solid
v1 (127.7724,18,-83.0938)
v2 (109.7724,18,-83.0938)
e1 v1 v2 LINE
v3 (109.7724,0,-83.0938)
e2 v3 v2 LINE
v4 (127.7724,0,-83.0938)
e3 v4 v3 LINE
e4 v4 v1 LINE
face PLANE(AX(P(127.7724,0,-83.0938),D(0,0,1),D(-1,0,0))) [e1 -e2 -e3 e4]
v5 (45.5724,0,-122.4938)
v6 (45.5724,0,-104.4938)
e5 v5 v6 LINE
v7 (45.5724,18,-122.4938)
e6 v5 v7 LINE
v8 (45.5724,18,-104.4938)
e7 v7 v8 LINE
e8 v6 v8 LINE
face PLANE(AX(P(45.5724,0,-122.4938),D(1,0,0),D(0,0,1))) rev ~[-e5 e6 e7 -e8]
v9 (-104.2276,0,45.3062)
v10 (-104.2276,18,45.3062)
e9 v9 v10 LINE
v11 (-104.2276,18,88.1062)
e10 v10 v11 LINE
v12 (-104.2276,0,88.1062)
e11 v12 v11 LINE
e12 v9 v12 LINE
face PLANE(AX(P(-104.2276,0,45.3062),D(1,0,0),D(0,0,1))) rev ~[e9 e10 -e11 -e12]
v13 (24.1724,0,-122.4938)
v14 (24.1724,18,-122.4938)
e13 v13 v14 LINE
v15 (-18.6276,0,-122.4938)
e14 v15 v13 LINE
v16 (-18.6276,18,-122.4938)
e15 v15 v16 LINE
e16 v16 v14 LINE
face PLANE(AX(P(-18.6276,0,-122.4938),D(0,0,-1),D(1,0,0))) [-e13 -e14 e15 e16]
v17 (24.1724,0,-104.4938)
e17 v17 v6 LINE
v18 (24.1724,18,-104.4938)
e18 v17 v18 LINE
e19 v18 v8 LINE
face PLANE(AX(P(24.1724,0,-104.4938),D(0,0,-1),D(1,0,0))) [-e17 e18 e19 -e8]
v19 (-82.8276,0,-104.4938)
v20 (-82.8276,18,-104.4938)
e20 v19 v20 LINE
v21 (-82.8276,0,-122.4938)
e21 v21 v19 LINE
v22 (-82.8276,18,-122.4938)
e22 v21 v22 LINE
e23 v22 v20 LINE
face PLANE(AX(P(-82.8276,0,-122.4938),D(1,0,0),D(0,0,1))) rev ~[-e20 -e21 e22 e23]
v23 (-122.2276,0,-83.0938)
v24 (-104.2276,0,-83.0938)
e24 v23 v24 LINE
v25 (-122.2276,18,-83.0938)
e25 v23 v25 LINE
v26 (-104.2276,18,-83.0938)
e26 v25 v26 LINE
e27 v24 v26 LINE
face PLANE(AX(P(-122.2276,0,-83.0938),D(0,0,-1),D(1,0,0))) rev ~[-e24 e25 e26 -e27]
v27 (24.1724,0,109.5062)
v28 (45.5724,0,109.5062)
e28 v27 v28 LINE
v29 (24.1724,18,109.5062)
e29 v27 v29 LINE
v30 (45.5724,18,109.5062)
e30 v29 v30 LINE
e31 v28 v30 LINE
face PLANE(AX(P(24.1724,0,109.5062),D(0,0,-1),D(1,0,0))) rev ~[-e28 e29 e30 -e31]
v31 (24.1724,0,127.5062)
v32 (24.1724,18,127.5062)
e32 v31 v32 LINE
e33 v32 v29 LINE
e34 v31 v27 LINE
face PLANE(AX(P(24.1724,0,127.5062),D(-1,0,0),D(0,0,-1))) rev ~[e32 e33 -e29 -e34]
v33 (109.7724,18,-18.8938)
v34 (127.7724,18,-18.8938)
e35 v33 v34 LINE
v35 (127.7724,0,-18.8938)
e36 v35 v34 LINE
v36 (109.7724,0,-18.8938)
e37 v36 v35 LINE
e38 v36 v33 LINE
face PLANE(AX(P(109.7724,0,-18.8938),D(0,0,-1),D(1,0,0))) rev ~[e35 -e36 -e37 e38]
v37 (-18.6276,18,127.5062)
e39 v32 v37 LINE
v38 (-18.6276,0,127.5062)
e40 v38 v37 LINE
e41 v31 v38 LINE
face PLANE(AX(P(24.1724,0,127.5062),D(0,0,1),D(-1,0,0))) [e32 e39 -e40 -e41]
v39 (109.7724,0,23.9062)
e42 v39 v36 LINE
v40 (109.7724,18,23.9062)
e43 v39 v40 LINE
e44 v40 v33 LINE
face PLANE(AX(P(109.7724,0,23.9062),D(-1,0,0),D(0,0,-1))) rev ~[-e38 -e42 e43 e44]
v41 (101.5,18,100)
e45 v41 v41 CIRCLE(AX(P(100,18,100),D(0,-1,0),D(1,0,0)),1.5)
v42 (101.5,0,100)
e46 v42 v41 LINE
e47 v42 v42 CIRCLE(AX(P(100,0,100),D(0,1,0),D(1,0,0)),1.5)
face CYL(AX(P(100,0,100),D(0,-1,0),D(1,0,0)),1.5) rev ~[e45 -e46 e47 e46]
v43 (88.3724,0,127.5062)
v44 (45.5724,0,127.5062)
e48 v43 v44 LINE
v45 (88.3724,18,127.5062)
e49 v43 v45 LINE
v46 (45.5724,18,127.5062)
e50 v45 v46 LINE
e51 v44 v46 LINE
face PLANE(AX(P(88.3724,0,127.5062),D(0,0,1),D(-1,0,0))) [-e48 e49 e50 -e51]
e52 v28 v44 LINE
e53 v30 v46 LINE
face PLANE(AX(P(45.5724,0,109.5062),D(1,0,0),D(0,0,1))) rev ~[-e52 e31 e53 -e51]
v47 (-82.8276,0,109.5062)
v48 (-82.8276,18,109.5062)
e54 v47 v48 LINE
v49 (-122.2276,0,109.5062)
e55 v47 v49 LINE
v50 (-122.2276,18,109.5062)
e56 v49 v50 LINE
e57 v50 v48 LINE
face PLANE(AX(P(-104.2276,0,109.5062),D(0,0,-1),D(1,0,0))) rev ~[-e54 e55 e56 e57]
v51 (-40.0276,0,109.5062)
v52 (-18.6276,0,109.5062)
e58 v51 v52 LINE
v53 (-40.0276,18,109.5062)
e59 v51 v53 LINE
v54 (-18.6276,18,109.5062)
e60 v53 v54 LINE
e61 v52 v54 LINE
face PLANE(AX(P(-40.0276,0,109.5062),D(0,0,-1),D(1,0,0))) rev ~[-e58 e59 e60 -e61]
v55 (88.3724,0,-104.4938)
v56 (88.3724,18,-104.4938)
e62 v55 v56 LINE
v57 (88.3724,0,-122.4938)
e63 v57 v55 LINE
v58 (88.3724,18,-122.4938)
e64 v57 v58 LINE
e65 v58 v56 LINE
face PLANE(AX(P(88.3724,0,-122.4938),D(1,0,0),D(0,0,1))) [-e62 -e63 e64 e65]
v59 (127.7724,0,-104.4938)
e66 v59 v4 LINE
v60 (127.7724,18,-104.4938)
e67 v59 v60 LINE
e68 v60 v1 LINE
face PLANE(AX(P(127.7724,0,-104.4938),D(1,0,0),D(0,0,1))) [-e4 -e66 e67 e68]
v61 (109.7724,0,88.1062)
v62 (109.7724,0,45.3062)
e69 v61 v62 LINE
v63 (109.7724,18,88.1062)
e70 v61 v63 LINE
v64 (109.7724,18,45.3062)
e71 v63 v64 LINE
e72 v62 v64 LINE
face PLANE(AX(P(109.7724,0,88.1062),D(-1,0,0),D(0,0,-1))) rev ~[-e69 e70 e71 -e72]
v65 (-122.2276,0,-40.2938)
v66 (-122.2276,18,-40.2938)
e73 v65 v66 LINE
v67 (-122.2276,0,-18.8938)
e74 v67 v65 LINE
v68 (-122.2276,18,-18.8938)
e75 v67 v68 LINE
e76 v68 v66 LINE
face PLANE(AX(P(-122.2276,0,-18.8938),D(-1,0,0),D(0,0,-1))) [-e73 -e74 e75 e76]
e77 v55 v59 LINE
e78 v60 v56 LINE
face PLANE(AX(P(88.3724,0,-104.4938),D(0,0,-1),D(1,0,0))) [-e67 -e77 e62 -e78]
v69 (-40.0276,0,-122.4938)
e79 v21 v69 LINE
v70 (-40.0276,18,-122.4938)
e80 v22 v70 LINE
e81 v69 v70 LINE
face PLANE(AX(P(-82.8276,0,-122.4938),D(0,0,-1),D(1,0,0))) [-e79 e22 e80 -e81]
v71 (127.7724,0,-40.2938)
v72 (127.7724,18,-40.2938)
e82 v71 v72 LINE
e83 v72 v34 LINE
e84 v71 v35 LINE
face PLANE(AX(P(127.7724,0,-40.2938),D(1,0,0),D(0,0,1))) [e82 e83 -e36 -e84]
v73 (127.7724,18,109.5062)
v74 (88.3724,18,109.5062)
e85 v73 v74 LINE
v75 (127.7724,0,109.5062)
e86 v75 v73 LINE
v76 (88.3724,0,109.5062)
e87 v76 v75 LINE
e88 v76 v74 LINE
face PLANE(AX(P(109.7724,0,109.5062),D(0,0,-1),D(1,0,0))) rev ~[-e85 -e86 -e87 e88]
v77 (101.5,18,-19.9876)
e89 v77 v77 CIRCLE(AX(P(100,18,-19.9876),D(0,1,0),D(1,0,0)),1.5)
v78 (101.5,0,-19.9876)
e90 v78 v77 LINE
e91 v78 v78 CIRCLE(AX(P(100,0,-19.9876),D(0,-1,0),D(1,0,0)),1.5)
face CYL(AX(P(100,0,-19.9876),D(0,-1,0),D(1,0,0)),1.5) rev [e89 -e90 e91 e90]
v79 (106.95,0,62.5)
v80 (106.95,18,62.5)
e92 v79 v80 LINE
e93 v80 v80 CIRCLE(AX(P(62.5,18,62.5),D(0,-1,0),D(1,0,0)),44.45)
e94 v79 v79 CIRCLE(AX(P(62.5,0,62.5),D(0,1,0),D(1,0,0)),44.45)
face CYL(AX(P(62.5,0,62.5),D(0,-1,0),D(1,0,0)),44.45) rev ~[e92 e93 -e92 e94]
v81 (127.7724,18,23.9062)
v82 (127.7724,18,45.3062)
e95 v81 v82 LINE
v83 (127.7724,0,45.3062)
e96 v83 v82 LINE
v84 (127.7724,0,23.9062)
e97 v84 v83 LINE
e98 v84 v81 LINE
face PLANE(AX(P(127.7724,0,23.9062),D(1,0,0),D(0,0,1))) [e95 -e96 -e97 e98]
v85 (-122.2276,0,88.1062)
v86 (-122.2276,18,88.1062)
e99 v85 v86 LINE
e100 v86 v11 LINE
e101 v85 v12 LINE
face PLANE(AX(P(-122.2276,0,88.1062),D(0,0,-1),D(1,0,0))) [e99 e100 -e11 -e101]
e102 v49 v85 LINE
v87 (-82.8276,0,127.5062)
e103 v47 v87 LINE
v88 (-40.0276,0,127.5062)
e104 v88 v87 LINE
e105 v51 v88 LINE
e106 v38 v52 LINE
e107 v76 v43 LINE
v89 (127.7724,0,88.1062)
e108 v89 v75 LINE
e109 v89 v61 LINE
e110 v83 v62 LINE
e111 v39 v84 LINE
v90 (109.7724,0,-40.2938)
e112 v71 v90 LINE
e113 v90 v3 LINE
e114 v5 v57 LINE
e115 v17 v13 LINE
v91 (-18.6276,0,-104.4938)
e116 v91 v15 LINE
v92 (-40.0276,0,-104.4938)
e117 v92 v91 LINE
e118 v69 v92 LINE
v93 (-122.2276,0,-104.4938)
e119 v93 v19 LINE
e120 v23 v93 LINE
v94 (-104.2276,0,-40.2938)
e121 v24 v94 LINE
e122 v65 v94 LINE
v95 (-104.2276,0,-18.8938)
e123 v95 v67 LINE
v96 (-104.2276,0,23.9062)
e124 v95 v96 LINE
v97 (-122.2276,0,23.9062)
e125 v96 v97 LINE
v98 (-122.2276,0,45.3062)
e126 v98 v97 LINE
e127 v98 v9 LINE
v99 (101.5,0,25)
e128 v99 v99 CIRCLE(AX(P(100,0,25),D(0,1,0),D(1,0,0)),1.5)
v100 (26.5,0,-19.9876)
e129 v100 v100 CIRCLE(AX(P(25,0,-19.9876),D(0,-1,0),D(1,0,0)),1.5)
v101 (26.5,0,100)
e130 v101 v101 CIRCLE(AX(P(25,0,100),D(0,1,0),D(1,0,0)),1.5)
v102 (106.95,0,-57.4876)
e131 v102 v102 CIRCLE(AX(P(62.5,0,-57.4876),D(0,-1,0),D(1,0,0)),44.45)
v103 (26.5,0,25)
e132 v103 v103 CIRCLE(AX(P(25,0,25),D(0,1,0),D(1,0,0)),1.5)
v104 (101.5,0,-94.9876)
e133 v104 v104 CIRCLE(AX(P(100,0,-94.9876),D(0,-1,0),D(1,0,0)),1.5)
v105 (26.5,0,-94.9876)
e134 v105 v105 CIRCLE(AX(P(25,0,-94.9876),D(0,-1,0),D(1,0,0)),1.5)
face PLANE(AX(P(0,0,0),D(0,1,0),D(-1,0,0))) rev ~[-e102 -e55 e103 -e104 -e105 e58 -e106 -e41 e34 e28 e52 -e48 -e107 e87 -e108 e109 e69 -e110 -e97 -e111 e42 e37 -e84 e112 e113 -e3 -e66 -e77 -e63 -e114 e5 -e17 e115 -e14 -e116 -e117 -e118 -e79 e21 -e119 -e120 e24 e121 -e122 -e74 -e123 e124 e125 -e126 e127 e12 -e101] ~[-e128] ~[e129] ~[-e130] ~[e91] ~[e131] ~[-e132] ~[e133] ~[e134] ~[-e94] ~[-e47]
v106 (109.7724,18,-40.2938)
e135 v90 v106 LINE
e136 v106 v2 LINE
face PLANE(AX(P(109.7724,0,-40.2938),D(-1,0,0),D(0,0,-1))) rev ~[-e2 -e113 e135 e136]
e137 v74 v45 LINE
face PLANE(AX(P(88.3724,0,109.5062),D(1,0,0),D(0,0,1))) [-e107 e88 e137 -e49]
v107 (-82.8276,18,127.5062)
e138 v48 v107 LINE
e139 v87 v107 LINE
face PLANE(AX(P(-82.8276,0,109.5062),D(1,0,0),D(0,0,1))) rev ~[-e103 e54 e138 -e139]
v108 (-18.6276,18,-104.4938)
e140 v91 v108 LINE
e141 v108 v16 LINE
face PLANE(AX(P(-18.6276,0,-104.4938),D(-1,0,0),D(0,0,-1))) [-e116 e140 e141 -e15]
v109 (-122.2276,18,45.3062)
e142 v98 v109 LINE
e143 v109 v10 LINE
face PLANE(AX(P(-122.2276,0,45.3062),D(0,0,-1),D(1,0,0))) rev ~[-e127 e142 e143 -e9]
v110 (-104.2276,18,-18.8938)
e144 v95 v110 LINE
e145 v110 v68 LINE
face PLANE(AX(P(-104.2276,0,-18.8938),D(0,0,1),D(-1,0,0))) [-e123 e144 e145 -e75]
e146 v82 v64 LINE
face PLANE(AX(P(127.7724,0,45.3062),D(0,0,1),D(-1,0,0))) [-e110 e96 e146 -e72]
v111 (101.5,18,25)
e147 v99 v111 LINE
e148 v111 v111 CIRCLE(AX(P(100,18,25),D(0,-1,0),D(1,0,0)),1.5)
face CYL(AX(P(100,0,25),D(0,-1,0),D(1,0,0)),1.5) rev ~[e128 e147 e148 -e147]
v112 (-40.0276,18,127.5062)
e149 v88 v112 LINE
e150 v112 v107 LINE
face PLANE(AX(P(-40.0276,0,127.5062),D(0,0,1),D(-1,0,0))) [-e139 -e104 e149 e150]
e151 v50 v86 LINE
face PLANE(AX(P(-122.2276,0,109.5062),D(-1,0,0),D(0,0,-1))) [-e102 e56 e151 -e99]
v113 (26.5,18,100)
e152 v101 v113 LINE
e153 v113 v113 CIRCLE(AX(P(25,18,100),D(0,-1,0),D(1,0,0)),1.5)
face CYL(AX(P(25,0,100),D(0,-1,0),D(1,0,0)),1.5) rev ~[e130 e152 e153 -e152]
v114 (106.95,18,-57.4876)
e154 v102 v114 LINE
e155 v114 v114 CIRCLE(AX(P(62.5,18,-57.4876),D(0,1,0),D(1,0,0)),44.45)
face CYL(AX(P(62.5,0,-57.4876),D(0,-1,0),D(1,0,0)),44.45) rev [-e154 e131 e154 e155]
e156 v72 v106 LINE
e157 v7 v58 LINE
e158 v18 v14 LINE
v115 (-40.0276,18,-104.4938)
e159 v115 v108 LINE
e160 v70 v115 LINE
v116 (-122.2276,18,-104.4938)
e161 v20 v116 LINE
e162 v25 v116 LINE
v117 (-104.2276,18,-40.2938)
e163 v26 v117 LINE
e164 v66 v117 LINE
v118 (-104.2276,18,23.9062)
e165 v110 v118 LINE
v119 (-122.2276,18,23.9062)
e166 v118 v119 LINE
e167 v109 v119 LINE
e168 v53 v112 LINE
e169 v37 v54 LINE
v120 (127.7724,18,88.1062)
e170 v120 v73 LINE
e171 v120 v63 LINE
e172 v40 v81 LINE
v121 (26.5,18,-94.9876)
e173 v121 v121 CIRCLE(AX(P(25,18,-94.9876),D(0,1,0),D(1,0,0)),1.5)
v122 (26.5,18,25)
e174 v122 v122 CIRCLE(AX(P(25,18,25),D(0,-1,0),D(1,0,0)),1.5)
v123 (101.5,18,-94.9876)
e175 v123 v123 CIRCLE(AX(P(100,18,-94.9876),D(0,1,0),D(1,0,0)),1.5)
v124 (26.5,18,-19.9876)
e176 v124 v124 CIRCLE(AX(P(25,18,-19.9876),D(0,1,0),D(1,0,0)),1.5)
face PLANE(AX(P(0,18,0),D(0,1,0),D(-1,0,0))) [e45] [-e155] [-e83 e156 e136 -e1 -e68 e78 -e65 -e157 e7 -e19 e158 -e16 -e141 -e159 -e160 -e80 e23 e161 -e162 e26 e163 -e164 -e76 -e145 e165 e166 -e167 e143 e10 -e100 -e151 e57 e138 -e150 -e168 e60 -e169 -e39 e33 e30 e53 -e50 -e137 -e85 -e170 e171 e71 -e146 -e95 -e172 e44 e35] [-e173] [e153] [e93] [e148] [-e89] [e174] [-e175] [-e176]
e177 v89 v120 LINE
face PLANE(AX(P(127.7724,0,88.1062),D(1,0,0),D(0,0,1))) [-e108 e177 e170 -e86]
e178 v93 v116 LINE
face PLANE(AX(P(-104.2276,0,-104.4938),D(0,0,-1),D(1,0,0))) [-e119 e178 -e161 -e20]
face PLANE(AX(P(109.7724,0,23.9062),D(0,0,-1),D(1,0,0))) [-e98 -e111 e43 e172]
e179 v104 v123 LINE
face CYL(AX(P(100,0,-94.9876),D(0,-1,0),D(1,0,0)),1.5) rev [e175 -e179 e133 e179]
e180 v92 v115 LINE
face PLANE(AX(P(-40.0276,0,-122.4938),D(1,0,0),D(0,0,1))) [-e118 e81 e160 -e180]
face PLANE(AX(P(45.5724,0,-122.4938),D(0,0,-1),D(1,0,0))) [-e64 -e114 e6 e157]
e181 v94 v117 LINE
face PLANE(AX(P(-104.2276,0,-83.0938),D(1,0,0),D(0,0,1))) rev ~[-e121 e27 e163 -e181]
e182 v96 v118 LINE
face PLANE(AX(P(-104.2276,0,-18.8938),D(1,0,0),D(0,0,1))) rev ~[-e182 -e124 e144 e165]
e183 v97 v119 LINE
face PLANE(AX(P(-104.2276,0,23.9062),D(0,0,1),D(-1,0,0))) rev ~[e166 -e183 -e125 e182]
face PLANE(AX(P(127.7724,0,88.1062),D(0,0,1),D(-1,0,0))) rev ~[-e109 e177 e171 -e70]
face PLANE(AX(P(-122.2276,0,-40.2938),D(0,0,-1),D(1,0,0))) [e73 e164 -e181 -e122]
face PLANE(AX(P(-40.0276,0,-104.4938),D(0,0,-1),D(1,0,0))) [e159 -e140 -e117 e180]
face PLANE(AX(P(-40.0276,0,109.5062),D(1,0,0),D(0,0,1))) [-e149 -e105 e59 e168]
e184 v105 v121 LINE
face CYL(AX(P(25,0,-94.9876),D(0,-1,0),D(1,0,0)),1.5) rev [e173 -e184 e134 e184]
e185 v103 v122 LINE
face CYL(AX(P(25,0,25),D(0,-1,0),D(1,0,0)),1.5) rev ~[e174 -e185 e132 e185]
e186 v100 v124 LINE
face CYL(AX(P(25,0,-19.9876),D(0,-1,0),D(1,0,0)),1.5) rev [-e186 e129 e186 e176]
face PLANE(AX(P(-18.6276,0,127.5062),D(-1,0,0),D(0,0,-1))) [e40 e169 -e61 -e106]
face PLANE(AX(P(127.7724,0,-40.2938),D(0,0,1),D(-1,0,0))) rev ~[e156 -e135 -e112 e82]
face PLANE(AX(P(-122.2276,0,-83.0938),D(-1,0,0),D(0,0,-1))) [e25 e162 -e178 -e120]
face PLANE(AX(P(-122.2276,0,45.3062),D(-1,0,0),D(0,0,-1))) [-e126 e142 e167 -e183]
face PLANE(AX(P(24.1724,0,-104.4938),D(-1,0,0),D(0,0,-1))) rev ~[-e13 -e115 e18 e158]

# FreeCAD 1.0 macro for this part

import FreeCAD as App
import Part
import Sketcher

V = App.Vector


def add_polygon(sketch, points):
    """Adds a closed chain of lines whose ends are joined by coincident constraints."""
    first, n = sketch.GeometryCount, len(points)
    for a, b in zip(points, points[1:] + points[:1]):
        sketch.addGeometry(Part.LineSegment(App.Vector(*a, 0), App.Vector(*b, 0)), False)
    for i in range(n):
        sketch.addConstraint(Sketcher.Constraint("Coincident", first + i, 2, first + (i + 1) % n, 1))

doc = App.newDocument("Part")
body = doc.addObject("PartDesign::Body", "Body")

sketch1 = body.newObject("Sketcher::SketchObject", "Sketch")
sketch1.AttachmentSupport = (doc.getObject("XZ_Plane"), [""])
sketch1.MapMode = "FlatFace"
add_polygon(sketch1, [(127.7724, 109.5062), (127.7724, 88.1062), (109.7724, 88.1062), (109.7724, 45.3062), (127.7724, 45.3062), (127.7724, 23.9062), (109.7724, 23.9062), (109.7724, -18.8938), (127.7724, -18.8938), (127.7724, -40.2938), (109.7724, -40.2938), (109.7724, -83.0938), (127.7724, -83.0938), (127.7724, -104.4938), (88.3724, -104.4938), (88.3724, -122.4938), (45.5724, -122.4938), (45.5724, -104.4938), (24.1724, -104.4938), (24.1724, -122.4938), (-18.6276, -122.4938), (-18.6276, -104.4938), (-40.0276, -104.4938), (-40.0276, -122.4938), (-82.8276, -122.4938), (-82.8276, -104.4938), (-122.2276, -104.4938), (-122.2276, -83.0938), (-104.2276, -83.0938), (-104.2276, -40.2938), (-122.2276, -40.2938), (-122.2276, -18.8938), (-104.2276, -18.8938), (-104.2276, 23.9062), (-122.2276, 23.9062), (-122.2276, 45.3062), (-104.2276, 45.3062), (-104.2276, 88.1062), (-122.2276, 88.1062), (-122.2276, 109.5062), (-82.8276, 109.5062), (-82.8276, 127.5062), (-40.0276, 127.5062), (-40.0276, 109.5062), (-18.6276, 109.5062), (-18.6276, 127.5062), (24.1724, 127.5062), (24.1724, 109.5062), (45.5724, 109.5062), (45.5724, 127.5062), (88.3724, 127.5062), (88.3724, 109.5062)])
sketch1.addConstraint([
    Sketcher.Constraint("Vertical", 0),
    Sketcher.Constraint("Horizontal", 1),
    Sketcher.Constraint("Vertical", 2),
    Sketcher.Constraint("Horizontal", 3),
    Sketcher.Constraint("Vertical", 4),
    Sketcher.Constraint("Horizontal", 5),
    Sketcher.Constraint("Vertical", 6),
    Sketcher.Constraint("Horizontal", 7),
    Sketcher.Constraint("Vertical", 8),
    Sketcher.Constraint("Horizontal", 9),
    Sketcher.Constraint("Vertical", 10),
    Sketcher.Constraint("Horizontal", 11),
    Sketcher.Constraint("Vertical", 12),
    Sketcher.Constraint("Horizontal", 13),
    Sketcher.Constraint("Vertical", 14),
    Sketcher.Constraint("Horizontal", 15),
    Sketcher.Constraint("Vertical", 16),
    Sketcher.Constraint("Horizontal", 17),
    Sketcher.Constraint("Vertical", 18),
    Sketcher.Constraint("Horizontal", 19),
    Sketcher.Constraint("Vertical", 20),
    Sketcher.Constraint("Horizontal", 21),
    Sketcher.Constraint("Vertical", 22),
    Sketcher.Constraint("Horizontal", 23),
    Sketcher.Constraint("Vertical", 24),
    Sketcher.Constraint("Horizontal", 25),
    Sketcher.Constraint("Vertical", 26),
    Sketcher.Constraint("Horizontal", 27),
    Sketcher.Constraint("Vertical", 28),
    Sketcher.Constraint("Horizontal", 29),
    Sketcher.Constraint("Vertical", 30),
    Sketcher.Constraint("Horizontal", 31),
    Sketcher.Constraint("Vertical", 32),
    Sketcher.Constraint("Horizontal", 33),
    Sketcher.Constraint("Vertical", 34),
    Sketcher.Constraint("Horizontal", 35),
    Sketcher.Constraint("Vertical", 36),
    Sketcher.Constraint("Horizontal", 37),
    Sketcher.Constraint("Vertical", 38),
    Sketcher.Constraint("Horizontal", 39),
    Sketcher.Constraint("Vertical", 40),
    Sketcher.Constraint("Horizontal", 41),
    Sketcher.Constraint("Vertical", 42),
    Sketcher.Constraint("Horizontal", 43),
    Sketcher.Constraint("Vertical", 44),
    Sketcher.Constraint("Horizontal", 45),
    Sketcher.Constraint("Vertical", 46),
    Sketcher.Constraint("Horizontal", 47),
    Sketcher.Constraint("Vertical", 48),
    Sketcher.Constraint("Horizontal", 49),
    Sketcher.Constraint("Vertical", 50),
    Sketcher.Constraint("Horizontal", 51),
    Sketcher.Constraint("Horizontal", 13, 2, 16, 2),
    Sketcher.Constraint("Horizontal", 15, 2, 18, 2),
    Sketcher.Constraint("Horizontal", 17, 2, 20, 2),
    Sketcher.Constraint("Horizontal", 19, 2, 22, 2),
    Sketcher.Constraint("Horizontal", 21, 2, 24, 2),
    Sketcher.Constraint("Horizontal", 11, 2, 26, 2),
    Sketcher.Constraint("Horizontal", 9, 2, 28, 2),
    Sketcher.Constraint("Horizontal", 7, 2, 30, 2),
    Sketcher.Constraint("Horizontal", 5, 2, 32, 2),
    Sketcher.Constraint("Horizontal", 3, 2, 34, 2),
    Sketcher.Constraint("Horizontal", 1, 2, 36, 2),
    Sketcher.Constraint("Horizontal", 39, 2, 42, 2),
    Sketcher.Constraint("Horizontal", 41, 2, 44, 2),
    Sketcher.Constraint("Horizontal", 43, 2, 46, 2),
    Sketcher.Constraint("Horizontal", 45, 2, 48, 2),
    Sketcher.Constraint("Horizontal", 47, 2, 50, 2),
    Sketcher.Constraint("Vertical", 0, 2, 3, 2),
    Sketcher.Constraint("Vertical", 2, 2, 5, 2),
    Sketcher.Constraint("Vertical", 4, 2, 7, 2),
    Sketcher.Constraint("Vertical", 6, 2, 9, 2),
    Sketcher.Constraint("Vertical", 8, 2, 11, 2),
    Sketcher.Constraint("Vertical", 26, 2, 29, 2),
    Sketcher.Constraint("Vertical", 28, 2, 31, 2),
    Sketcher.Constraint("Vertical", 30, 2, 33, 2),
    Sketcher.Constraint("Vertical", 32, 2, 35, 2),
    Sketcher.Constraint("Vertical", 34, 2, 37, 2),
    Sketcher.Constraint("Vertical", 24, 2, 39, 2),
    Sketcher.Constraint("Vertical", 22, 2, 41, 2),
    Sketcher.Constraint("Vertical", 20, 2, 43, 2),
    Sketcher.Constraint("Vertical", 18, 2, 45, 2),
    Sketcher.Constraint("Vertical", 16, 2, 47, 2),
    Sketcher.Constraint("Vertical", 14, 2, 49, 2),
    Sketcher.Constraint("Equal", 15, 19),
    Sketcher.Constraint("Equal", 17, 21),
    Sketcher.Constraint("Equal", 19, 23),
    Sketcher.Constraint("Equal", 13, 25),
    Sketcher.Constraint("Equal", 11, 27),
    Sketcher.Constraint("Equal", 47, 0),
    Sketcher.Constraint("Equal", 49, 2),
    Sketcher.Constraint("Equal", 0, 4),
    Sketcher.Constraint("Equal", 2, 6),
    Sketcher.Constraint("Equal", 4, 8),
    Sketcher.Constraint("Equal", 6, 10),
    Sketcher.Constraint("Equal", 8, 12),
    Sketcher.Constraint("Equal", 37, 14),
    Sketcher.Constraint("Equal", 24, 40),
    Sketcher.Constraint("DistanceX", 17, 2, 17, 1, 21.4),
    Sketcher.Constraint("DistanceX", 13, 2, 10, 2, 21.4),
    Sketcher.Constraint("DistanceX", 1, 2, 1, 1, 18.0),
    Sketcher.Constraint("DistanceX", 15, 2, 15, 1, 42.8),
    Sketcher.Constraint("DistanceX", -1, 1, 0, 2, 127.7724),
    Sketcher.Constraint("DistanceY", -1, 1, 0, 2, 88.1062),
])
pad1 = body.newObject("PartDesign::Pad", "Pad")
pad1.Profile = sketch1
pad1.Length = 18
pad1.Reversed = True

sketch2 = body.newObject("Sketcher::SketchObject", "Sketch001")
sketch2.AttachmentSupport = (doc.getObject("XZ_Plane"), [""])
sketch2.MapMode = "FlatFace"
sketch2.addGeometry([
    Part.Circle(V(62.5, 62.5, 0), V(0, 0, 1), 44.45),
    Part.Circle(V(100, 100, 0), V(0, 0, 1), 1.5),
    Part.Circle(V(100, 25, 0), V(0, 0, 1), 1.5),
    Part.Circle(V(25, 100, 0), V(0, 0, 1), 1.5),
    Part.Circle(V(25, 25, 0), V(0, 0, 1), 1.5),
], False)
sketch2.addConstraint([
    Sketcher.Constraint("Equal", 1, 2),
    Sketcher.Constraint("Equal", 2, 3),
    Sketcher.Constraint("Equal", 3, 4),
    Sketcher.Constraint("Horizontal", 1, 3, 3, 3),
    Sketcher.Constraint("Horizontal", 2, 3, 4, 3),
    Sketcher.Constraint("Vertical", 1, 3, 2, 3),
    Sketcher.Constraint("Vertical", 3, 3, 4, 3),
    Sketcher.Constraint("Diameter", 1, 3.0),
    Sketcher.Constraint("Diameter", 0, 88.9),
    Sketcher.Constraint("DistanceY", 2, 3, 1, 3, 75.0),
    Sketcher.Constraint("DistanceX", 3, 3, 1, 3, 75.0),
    Sketcher.Constraint("DistanceX", -1, 1, 1, 3, 100.0),
    Sketcher.Constraint("DistanceY", -1, 1, 1, 3, 100.0),
    Sketcher.Constraint("DistanceX", -1, 1, 0, 3, 62.5),
    Sketcher.Constraint("DistanceY", -1, 1, 0, 3, 62.5),
])
pocket1 = body.newObject("PartDesign::Pocket", "Pocket")
pocket1.Profile = sketch2
pocket1.Length = 18
doc.recompute()

datumplane = body.newObject("PartDesign::Plane", "DatumPlane")
datumplane.AttachmentSupport = (doc.getObject("XY_Plane"), [""])
datumplane.MapMode = "FlatFace"
datumplane.AttachmentOffset = App.Placement(V(0, 0, 2.5062), App.Rotation())
mirrored = body.newObject("PartDesign::Mirrored", "Mirrored")
mirrored.Originals = [pocket1]
mirrored.MirrorPlane = (datumplane, [""])
body.Tip = mirrored

doc.recompute()
